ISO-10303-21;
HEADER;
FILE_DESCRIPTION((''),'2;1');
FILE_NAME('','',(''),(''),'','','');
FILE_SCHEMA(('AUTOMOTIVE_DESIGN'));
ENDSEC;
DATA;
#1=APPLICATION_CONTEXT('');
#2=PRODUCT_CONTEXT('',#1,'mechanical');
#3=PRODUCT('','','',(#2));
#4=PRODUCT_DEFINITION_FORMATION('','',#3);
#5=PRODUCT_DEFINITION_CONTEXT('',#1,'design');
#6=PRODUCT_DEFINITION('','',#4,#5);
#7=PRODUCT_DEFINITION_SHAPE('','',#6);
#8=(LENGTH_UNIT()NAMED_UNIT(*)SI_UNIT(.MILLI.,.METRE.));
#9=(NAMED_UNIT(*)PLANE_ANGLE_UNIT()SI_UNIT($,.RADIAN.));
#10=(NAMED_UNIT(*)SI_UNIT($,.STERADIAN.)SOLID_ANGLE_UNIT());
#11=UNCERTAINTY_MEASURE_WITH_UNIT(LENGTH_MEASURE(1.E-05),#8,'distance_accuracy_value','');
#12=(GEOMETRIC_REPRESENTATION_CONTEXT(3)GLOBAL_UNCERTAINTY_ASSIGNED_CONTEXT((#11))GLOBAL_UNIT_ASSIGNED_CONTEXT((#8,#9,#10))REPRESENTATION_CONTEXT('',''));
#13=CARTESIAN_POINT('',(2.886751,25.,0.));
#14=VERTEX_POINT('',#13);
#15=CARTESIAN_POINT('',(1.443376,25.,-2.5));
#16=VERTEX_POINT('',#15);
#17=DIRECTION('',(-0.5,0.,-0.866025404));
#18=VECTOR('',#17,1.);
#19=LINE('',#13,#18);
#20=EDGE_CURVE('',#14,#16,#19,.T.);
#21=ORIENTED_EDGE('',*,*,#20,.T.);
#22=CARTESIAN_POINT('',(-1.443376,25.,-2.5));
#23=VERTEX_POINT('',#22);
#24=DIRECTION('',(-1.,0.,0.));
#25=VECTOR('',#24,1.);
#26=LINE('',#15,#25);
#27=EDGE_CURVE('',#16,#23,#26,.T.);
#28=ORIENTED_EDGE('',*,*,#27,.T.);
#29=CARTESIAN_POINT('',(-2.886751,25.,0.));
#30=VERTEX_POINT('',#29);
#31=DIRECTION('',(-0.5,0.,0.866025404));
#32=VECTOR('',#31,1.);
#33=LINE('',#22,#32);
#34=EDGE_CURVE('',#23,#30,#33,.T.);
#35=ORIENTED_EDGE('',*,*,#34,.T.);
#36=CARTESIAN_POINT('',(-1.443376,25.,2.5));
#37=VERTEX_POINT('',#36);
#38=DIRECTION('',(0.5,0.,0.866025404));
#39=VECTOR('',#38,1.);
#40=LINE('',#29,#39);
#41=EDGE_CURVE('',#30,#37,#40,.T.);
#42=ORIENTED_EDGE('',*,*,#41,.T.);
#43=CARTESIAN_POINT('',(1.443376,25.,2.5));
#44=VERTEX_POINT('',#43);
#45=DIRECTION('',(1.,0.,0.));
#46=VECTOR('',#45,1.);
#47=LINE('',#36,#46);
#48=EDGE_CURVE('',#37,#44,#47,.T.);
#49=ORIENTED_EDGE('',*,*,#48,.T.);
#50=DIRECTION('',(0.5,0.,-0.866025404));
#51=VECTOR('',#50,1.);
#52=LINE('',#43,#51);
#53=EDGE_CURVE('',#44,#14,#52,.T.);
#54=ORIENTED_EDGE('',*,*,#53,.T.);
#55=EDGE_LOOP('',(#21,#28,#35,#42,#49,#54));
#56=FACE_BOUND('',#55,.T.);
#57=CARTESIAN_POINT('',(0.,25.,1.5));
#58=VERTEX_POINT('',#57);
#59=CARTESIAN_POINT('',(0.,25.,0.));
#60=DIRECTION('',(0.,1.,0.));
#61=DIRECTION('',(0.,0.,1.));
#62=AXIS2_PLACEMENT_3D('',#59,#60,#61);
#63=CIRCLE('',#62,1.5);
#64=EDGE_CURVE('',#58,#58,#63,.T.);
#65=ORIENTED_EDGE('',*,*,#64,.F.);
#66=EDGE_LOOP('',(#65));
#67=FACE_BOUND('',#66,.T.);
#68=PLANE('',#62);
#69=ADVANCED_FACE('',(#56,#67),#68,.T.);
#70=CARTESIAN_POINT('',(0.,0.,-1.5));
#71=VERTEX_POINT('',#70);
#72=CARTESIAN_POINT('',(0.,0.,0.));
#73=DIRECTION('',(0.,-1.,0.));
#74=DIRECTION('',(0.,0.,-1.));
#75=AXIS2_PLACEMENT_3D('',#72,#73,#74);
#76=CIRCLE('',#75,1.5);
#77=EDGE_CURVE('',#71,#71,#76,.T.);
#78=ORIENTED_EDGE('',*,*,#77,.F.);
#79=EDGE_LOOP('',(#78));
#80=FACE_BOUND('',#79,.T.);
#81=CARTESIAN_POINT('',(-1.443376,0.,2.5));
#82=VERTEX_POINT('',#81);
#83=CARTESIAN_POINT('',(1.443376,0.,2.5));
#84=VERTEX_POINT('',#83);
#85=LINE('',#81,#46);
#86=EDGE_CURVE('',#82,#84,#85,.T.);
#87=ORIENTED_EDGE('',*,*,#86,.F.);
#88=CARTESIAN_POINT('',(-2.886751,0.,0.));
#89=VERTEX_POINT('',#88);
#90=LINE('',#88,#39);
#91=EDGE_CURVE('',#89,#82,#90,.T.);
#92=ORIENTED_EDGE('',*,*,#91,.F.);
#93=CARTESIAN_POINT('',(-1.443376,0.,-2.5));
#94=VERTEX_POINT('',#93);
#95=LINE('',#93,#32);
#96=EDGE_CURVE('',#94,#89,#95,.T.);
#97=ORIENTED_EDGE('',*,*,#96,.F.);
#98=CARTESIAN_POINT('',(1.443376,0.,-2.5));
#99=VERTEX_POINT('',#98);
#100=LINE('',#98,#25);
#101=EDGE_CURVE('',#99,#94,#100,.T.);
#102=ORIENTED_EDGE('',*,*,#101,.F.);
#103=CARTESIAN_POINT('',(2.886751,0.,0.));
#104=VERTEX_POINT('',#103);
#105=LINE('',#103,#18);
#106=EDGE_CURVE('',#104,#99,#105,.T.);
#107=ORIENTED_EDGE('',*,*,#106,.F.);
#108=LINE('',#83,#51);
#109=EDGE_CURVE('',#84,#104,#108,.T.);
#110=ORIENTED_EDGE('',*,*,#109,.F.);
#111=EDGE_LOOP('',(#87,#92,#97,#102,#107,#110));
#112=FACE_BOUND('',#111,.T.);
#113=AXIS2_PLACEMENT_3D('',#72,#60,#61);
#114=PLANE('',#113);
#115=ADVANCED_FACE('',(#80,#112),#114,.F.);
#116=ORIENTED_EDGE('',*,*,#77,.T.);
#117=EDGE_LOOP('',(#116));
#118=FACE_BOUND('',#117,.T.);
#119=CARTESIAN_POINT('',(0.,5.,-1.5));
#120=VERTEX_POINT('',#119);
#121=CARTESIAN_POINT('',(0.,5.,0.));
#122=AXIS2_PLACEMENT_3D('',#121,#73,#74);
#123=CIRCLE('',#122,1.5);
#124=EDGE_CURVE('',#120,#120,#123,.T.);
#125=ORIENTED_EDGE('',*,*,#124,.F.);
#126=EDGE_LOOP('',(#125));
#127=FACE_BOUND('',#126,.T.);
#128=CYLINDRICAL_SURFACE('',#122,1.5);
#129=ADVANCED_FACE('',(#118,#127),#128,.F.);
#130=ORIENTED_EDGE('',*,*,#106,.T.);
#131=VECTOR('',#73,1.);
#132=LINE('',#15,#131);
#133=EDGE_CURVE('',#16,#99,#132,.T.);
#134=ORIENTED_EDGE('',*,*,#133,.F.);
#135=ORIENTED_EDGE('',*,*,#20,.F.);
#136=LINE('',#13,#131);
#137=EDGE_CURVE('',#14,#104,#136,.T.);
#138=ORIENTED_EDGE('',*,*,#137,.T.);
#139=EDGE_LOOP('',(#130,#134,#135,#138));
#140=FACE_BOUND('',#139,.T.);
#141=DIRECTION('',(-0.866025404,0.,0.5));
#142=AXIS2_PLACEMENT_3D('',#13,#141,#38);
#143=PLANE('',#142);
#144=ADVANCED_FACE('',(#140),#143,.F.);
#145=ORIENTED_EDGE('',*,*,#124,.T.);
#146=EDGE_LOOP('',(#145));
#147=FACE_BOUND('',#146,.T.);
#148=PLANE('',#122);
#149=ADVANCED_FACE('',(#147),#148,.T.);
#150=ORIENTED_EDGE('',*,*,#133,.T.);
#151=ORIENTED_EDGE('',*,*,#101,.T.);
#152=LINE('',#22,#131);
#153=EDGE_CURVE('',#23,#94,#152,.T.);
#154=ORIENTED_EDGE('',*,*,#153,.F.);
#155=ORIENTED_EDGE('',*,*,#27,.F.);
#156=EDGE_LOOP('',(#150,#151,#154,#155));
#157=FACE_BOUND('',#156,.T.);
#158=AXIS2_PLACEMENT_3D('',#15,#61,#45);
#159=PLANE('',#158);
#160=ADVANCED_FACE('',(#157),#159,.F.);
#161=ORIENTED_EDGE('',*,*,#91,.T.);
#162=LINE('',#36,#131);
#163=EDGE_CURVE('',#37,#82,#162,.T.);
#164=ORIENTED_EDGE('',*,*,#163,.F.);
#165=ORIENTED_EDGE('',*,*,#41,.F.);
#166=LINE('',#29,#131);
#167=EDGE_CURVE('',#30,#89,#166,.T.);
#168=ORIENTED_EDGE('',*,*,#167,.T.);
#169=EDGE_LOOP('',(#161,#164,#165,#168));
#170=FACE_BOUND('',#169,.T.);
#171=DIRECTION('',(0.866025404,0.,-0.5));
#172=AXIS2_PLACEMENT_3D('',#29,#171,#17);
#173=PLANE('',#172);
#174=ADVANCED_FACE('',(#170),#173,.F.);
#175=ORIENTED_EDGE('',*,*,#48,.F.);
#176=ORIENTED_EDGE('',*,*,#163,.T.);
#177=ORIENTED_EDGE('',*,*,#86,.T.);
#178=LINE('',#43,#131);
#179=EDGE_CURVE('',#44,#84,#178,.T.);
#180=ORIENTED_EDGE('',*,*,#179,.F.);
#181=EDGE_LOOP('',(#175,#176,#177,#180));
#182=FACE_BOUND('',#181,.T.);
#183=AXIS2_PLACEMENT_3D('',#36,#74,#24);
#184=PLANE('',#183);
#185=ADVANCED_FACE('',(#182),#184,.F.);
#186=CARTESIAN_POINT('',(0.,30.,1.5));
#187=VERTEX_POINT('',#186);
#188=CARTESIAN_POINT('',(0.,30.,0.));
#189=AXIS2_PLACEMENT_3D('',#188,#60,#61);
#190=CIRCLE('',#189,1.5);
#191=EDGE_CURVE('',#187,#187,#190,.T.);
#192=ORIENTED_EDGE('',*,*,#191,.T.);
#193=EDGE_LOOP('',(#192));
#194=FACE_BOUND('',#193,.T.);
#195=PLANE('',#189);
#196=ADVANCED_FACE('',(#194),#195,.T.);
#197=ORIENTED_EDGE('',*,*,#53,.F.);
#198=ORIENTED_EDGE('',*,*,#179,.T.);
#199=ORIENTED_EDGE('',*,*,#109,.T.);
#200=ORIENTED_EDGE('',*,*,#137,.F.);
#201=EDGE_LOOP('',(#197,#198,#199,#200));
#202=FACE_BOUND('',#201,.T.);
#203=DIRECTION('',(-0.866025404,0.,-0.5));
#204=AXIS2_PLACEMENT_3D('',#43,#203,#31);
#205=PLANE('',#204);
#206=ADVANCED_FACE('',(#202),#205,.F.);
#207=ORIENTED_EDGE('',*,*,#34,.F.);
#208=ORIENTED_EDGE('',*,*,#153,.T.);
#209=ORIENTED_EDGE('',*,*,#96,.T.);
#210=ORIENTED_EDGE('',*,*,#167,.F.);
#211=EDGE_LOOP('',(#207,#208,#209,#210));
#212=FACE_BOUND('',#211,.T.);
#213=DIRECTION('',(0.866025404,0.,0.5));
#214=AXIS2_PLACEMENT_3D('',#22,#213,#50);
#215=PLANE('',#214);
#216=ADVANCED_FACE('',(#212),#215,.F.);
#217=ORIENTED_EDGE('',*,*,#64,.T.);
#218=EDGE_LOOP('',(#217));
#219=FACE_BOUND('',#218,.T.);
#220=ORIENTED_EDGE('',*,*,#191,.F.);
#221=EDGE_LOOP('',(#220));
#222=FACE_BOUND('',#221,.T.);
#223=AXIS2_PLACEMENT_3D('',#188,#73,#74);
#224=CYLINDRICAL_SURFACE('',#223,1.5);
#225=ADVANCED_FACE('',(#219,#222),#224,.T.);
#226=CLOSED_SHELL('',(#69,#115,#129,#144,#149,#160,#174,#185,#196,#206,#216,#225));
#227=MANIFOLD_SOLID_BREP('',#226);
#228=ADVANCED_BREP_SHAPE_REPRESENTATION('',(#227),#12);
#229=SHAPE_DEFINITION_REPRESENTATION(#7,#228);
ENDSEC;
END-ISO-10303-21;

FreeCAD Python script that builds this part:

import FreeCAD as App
import Part
import Sketcher
Q = App.Units.Quantity

doc = App.newDocument("Part")
body = doc.addObject("PartDesign::Body", "Body")

# Sketch on XZ plane
sketch1 = body.newObject("Sketcher::SketchObject", "Sketch")
sketch1.AttachmentSupport = (doc.getObject("XZ_Plane"), [""])
sketch1.MapMode = "FlatFace"
sketch1.addGeometry([
    Part.LineSegment(App.Vector(2.9, 0, 0), App.Vector(1.4, -2.5, 0)),  # 0
    Part.LineSegment(App.Vector(1.4, -2.5, 0), App.Vector(-1.4, -2.5, 0)),  # 1
    Part.LineSegment(App.Vector(-1.4, -2.5, 0), App.Vector(-2.9, 0, 0)),  # 2
    Part.LineSegment(App.Vector(-2.9, 0, 0), App.Vector(-1.4, 2.5, 0)),  # 3
    Part.LineSegment(App.Vector(-1.4, 2.5, 0), App.Vector(1.4, 2.5, 0)),  # 4
    Part.LineSegment(App.Vector(1.4, 2.5, 0), App.Vector(2.9, 0, 0)),  # 5
], False)
sketch1.addConstraint([
    Sketcher.Constraint("Coincident", 0, 2, 1, 1),
    Sketcher.Constraint("Coincident", 1, 2, 2, 1),
    Sketcher.Constraint("Coincident", 2, 2, 3, 1),
    Sketcher.Constraint("Coincident", 3, 2, 4, 1),
    Sketcher.Constraint("Coincident", 4, 2, 5, 1),
    Sketcher.Constraint("Coincident", 5, 2, 0, 1),
    Sketcher.Constraint("Horizontal", 1),
    Sketcher.Constraint("Horizontal", 4),
    Sketcher.Constraint("Symmetric", 0, 2, 3, 2, -1, 1),
    Sketcher.Constraint("Symmetric", 2, 2, 5, 2, -1, 1),
    Sketcher.Constraint("PointOnObject", 2, 2, -1),
    Sketcher.Constraint("Parallel", 2, 5),
    Sketcher.Constraint("Vertical", 1, 2, 3, 2),
    Sketcher.Constraint("Angle", 0, Q("-120 deg")),
    Sketcher.Constraint("DistanceY", 1, 2, 3, 2, Q("5 mm")),
    Sketcher.Constraint("DistanceX", 1, 2, 1, 1, Q("2.886751 mm")),
])
pad1 = body.newObject("PartDesign::Pad", "Pad")
pad1.Profile = sketch1
pad1.Length = 25
pad1.Reversed = True

# Sketch on XZ plane
sketch2 = body.newObject("Sketcher::SketchObject", "Sketch001")
sketch2.AttachmentSupport = (doc.getObject("XZ_Plane"), [""])
sketch2.MapMode = "FlatFace"
sketch2.AttachmentOffset = App.Placement(App.Vector(0, 0, -25), App.Rotation())
sketch2.addGeometry(Part.Circle(App.Vector(0, 0, 0), App.Vector(0, 0, 1), 1.5), False)
sketch2.addConstraint([
    Sketcher.Constraint("Coincident", 0, 3, -1, 1),
    Sketcher.Constraint("Diameter", 0, Q("3 mm")),
])
pad2 = body.newObject("PartDesign::Pad", "Pad001")
pad2.Profile = sketch2
pad2.Length = 5
pad2.Reversed = True

# Sketch on XZ plane
sketch3 = body.newObject("Sketcher::SketchObject", "Sketch002")
sketch3.AttachmentSupport = (doc.getObject("XZ_Plane"), [""])
sketch3.MapMode = "FlatFace"
sketch3.addGeometry(Part.Circle(App.Vector(0, 0, 0), App.Vector(0, 0, 1), 1.5), False)
sketch3.addConstraint([
    Sketcher.Constraint("Coincident", 0, 3, -1, 1),
    Sketcher.Constraint("Diameter", 0, Q("3 mm")),
])
pocket1 = body.newObject("PartDesign::Pocket", "Pocket")
pocket1.Profile = sketch3
pocket1.Length = 5

doc.recompute()
